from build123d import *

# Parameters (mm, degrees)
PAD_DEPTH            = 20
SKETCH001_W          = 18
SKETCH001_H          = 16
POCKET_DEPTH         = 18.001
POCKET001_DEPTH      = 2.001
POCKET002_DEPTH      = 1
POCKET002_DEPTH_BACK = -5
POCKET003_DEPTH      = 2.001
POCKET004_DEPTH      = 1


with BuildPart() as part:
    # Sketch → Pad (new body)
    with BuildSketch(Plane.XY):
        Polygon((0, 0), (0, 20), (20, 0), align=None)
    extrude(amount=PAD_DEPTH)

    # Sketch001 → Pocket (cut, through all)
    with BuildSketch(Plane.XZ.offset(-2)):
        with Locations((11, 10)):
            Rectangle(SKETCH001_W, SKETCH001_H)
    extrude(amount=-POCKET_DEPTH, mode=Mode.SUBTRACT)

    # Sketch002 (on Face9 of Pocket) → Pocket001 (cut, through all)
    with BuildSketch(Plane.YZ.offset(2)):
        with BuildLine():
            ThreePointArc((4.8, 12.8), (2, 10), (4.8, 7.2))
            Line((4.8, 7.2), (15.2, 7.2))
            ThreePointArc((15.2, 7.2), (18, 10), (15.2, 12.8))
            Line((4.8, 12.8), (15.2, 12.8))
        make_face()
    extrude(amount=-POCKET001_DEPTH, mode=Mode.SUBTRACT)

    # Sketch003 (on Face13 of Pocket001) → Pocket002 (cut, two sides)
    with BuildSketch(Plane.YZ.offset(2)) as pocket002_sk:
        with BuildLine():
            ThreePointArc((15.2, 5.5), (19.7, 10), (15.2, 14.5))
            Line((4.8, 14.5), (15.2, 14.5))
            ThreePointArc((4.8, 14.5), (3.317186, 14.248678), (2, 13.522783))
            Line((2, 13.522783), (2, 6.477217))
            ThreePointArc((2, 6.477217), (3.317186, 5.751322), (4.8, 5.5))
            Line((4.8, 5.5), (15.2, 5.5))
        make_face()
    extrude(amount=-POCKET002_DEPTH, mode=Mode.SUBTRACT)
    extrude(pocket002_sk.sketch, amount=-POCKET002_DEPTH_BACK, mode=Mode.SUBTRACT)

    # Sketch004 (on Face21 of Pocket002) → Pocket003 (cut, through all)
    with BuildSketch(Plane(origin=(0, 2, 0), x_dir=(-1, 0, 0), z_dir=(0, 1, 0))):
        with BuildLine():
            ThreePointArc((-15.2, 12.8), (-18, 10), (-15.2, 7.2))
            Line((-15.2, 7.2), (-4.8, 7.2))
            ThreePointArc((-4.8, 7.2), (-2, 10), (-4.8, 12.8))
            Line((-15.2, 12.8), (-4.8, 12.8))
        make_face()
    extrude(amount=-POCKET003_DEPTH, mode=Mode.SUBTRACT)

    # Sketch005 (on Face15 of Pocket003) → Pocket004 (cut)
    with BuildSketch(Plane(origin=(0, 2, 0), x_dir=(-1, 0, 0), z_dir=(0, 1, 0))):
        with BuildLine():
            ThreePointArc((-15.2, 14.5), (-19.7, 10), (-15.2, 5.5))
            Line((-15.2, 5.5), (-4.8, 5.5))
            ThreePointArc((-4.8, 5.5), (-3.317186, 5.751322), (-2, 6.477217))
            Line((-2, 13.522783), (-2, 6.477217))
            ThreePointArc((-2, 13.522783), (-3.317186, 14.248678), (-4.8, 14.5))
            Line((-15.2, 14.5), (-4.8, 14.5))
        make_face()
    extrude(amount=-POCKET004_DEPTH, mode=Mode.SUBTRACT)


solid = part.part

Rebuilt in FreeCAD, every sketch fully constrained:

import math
import FreeCAD as App
import Part
import Sketcher

doc = App.newDocument("Part")
body = doc.addObject("PartDesign::Body", "Body")

sketch1 = body.newObject("Sketcher::SketchObject", "Sketch")
sketch1.AttachmentSupport = (doc.getObject("XY_Plane"), [""])
sketch1.MapMode = "FlatFace"
sketch1.addGeometry([
    Part.LineSegment(App.Vector(0, 20, 0), App.Vector(0, 0, 0)),
    Part.LineSegment(App.Vector(0, 0, 0), App.Vector(20, 0, 0)),
    Part.LineSegment(App.Vector(20, 0, 0), App.Vector(0, 20, 0)),
], False)
sketch1.addConstraint([
    Sketcher.Constraint("Coincident", 0, 2, 1, 1),
    Sketcher.Constraint("Coincident", 1, 2, 2, 1),
    Sketcher.Constraint("Coincident", 2, 2, 0, 1),
    Sketcher.Constraint("Vertical", 0),
    Sketcher.Constraint("Horizontal", 1),
    Sketcher.Constraint("Coincident", 0, 2, -1, 1),
    Sketcher.Constraint("Equal", 1, 0),
    Sketcher.Constraint("DistanceX", 1, 1, 1, 2, 20.0),
])
pad1 = body.newObject("PartDesign::Pad", "Pad")
pad1.Profile = sketch1
pad1.Length = 20

sketch2 = body.newObject("Sketcher::SketchObject", "Sketch001")
sketch2.AttachmentSupport = (doc.getObject("XZ_Plane"), [""])
sketch2.MapMode = "FlatFace"
sketch2.AttachmentOffset = App.Placement(App.Vector(0, 0, -2), App.Rotation())
sketch2.addGeometry([
    Part.LineSegment(App.Vector(2, 18, 0), App.Vector(2, 2, 0)),
    Part.LineSegment(App.Vector(2, 2, 0), App.Vector(20, 2, 0)),
    Part.LineSegment(App.Vector(20, 2, 0), App.Vector(20, 18, 0)),
    Part.LineSegment(App.Vector(20, 18, 0), App.Vector(2, 18, 0)),
], False)
sketch2.addConstraint([
    Sketcher.Constraint("Coincident", 0, 2, 1, 1),
    Sketcher.Constraint("Coincident", 1, 2, 2, 1),
    Sketcher.Constraint("Coincident", 2, 2, 3, 1),
    Sketcher.Constraint("Coincident", 3, 2, 0, 1),
    Sketcher.Constraint("Vertical", 0),
    Sketcher.Constraint("Horizontal", 1),
    Sketcher.Constraint("Vertical", 2),
    Sketcher.Constraint("Horizontal", 3),
    Sketcher.Constraint("DistanceX", 1, 1, 1, 2, 18.0),
    Sketcher.Constraint("DistanceY", 0, 2, 0, 1, 16.0),
    Sketcher.Constraint("DistanceX", -1, 1, 0, 2, 2.0),
    Sketcher.Constraint("DistanceY", -1, 1, 0, 2, 2.0),
])
pocket1 = body.newObject("PartDesign::Pocket", "Pocket")
pocket1.Profile = sketch2
pocket1.Type = "ThroughAll"

sketch3 = body.newObject("Sketcher::SketchObject", "Sketch002")
sketch3.AttachmentSupport = (doc.getObject("YZ_Plane"), [""])
sketch3.MapMode = "FlatFace"
sketch3.AttachmentOffset = App.Placement(App.Vector(0, 0, 2), App.Rotation())
sketch3.addGeometry([
    Part.ArcOfCircle(Part.Circle(App.Vector(4.8, 10, 0), App.Vector(0, 0, 1), 2.8), math.radians(90), math.radians(270)),
    Part.LineSegment(App.Vector(4.8, 7.2, 0), App.Vector(15.2, 7.2, 0)),
    Part.ArcOfCircle(Part.Circle(App.Vector(15.2, 10, 0), App.Vector(0, 0, 1), 2.8), math.radians(-90), math.radians(90)),
    Part.LineSegment(App.Vector(15.2, 12.8, 0), App.Vector(4.8, 12.8, 0)),
], False)
sketch3.addConstraint([
    Sketcher.Constraint("Tangent", 0, 2, 1, 1),
    Sketcher.Constraint("Tangent", 1, 2, 2, 1),
    Sketcher.Constraint("Tangent", 2, 2, 3, 1),
    Sketcher.Constraint("Tangent", 3, 2, 0, 1),
    Sketcher.Constraint("Horizontal", 1),
    Sketcher.Constraint("Horizontal", 3),
    Sketcher.Constraint("Radius", 0, 2.8),
    Sketcher.Constraint("DistanceX", 1, 1, 1, 2, 10.4),
    Sketcher.Constraint("DistanceY", -1, 1, 0, 3, 10.0),
    Sketcher.Constraint("DistanceX", -1, 1, 0, 3, 4.8),
])
pocket2 = body.newObject("PartDesign::Pocket", "Pocket001")
pocket2.Profile = sketch3
pocket2.Type = "ThroughAll"

sketch4 = body.newObject("Sketcher::SketchObject", "Sketch003")
sketch4.AttachmentSupport = (doc.getObject("YZ_Plane"), [""])
sketch4.MapMode = "FlatFace"
sketch4.AttachmentOffset = App.Placement(App.Vector(0, 0, 2), App.Rotation())
sketch4.addGeometry([
    Part.ArcOfCircle(Part.Circle(App.Vector(15.2, 10, 0), App.Vector(0, 0, 1), 4.5), math.radians(-90), math.radians(90)),
    Part.LineSegment(App.Vector(15.2, 14.5, 0), App.Vector(4.8, 14.5, 0)),
    Part.ArcOfCircle(Part.Circle(App.Vector(4.799999, 10.000004, 0), App.Vector(0, 0, 1), 4.499996), math.radians(89.999983), math.radians(128.478612)),
    Part.LineSegment(App.Vector(2, 13.522783, 0), App.Vector(2, 6.477217, 0)),
    Part.ArcOfCircle(Part.Circle(App.Vector(4.799999, 9.999996, 0), App.Vector(0, 0, 1), 4.499996), math.radians(-128.478612), math.radians(-89.999983)),
    Part.LineSegment(App.Vector(4.8, 5.5, 0), App.Vector(15.2, 5.5, 0)),
], False)
sketch4.addConstraint([
    Sketcher.Constraint("Tangent", 0, 2, 1, 1),
    Sketcher.Constraint("Tangent", 1, 2, 2, 1),
    Sketcher.Constraint("Coincident", 2, 2, 3, 1),
    Sketcher.Constraint("Coincident", 3, 2, 4, 1),
    Sketcher.Constraint("Tangent", 4, 2, 5, 1),
    Sketcher.Constraint("Tangent", 5, 2, 0, 1),
    Sketcher.Constraint("Horizontal", 1),
    Sketcher.Constraint("Vertical", 3),
    Sketcher.Constraint("Horizontal", 5),
    Sketcher.Constraint("Coincident", 4, 3, 2, 3),
    Sketcher.Constraint("Equal", 2, 4),
    Sketcher.Constraint("Radius", 0, 4.5),
    Sketcher.Constraint("DistanceX", 1, 2, 1, 1, 10.4),
    Sketcher.Constraint("DistanceY", -1, 1, 0, 3, 10.0),
    Sketcher.Constraint("DistanceX", -1, 1, 2, 2, 2.0),
    Sketcher.Constraint("DistanceX", -1, 1, 0, 3, 15.2),
])
pocket3 = body.newObject("PartDesign::Pocket", "Pocket002")
pocket3.Profile = sketch4
pocket3.Type = "TwoLengths"
pocket3.Length = 1
pocket3.Length2 = 5

sketch5 = body.newObject("Sketcher::SketchObject", "Sketch004")
sketch5.AttachmentSupport = (doc.getObject("XZ_Plane"), [""])
sketch5.MapMode = "FlatFace"
sketch5.AttachmentOffset = App.Placement(App.Vector(0, 0, -2), App.Rotation())
sketch5.addGeometry([
    Part.ArcOfCircle(Part.Circle(App.Vector(15.2, 10, 0), App.Vector(0, 0, 1), 2.8), math.radians(-90), math.radians(90)),
    Part.LineSegment(App.Vector(15.2, 7.2, 0), App.Vector(4.8, 7.2, 0)),
    Part.ArcOfCircle(Part.Circle(App.Vector(4.8, 10, 0), App.Vector(0, 0, 1), 2.8), math.radians(90), math.radians(270)),
    Part.LineSegment(App.Vector(4.8, 12.8, 0), App.Vector(15.2, 12.8, 0)),
], False)
sketch5.addConstraint([
    Sketcher.Constraint("Tangent", 0, 1, 1, 1),
    Sketcher.Constraint("Tangent", 1, 2, 2, 2),
    Sketcher.Constraint("Tangent", 2, 1, 3, 1),
    Sketcher.Constraint("Tangent", 3, 2, 0, 2),
    Sketcher.Constraint("Horizontal", 1),
    Sketcher.Constraint("Horizontal", 3),
    Sketcher.Constraint("Radius", 0, 2.8),
    Sketcher.Constraint("DistanceX", 1, 2, 1, 1, 10.4),
    Sketcher.Constraint("DistanceY", -1, 1, 0, 3, 10.0),
    Sketcher.Constraint("DistanceX", -1, 1, 0, 3, 15.2),
])
pocket4 = body.newObject("PartDesign::Pocket", "Pocket003")
pocket4.Profile = sketch5
pocket4.Type = "ThroughAll"
pocket4.Reversed = True

sketch6 = body.newObject("Sketcher::SketchObject", "Sketch005")
sketch6.AttachmentSupport = (doc.getObject("XZ_Plane"), [""])
sketch6.MapMode = "FlatFace"
sketch6.AttachmentOffset = App.Placement(App.Vector(0, 0, -2), App.Rotation())
sketch6.addGeometry([
    Part.ArcOfCircle(Part.Circle(App.Vector(15.2, 10, 0), App.Vector(0, 0, 1), 4.5), math.radians(-90), math.radians(90)),
    Part.LineSegment(App.Vector(15.2, 5.5, 0), App.Vector(4.8, 5.5, 0)),
    Part.ArcOfCircle(Part.Circle(App.Vector(4.799999, 9.999996, 0), App.Vector(0, 0, 1), 4.499996), math.radians(-128.478612), math.radians(-89.999983)),
    Part.LineSegment(App.Vector(2, 6.477217, 0), App.Vector(2, 13.522783, 0)),
    Part.ArcOfCircle(Part.Circle(App.Vector(4.799999, 10.000004, 0), App.Vector(0, 0, 1), 4.499996), math.radians(89.999983), math.radians(128.478612)),
    Part.LineSegment(App.Vector(4.8, 14.5, 0), App.Vector(15.2, 14.5, 0)),
], False)
sketch6.addConstraint([
    Sketcher.Constraint("Tangent", 0, 1, 1, 1),
    Sketcher.Constraint("Tangent", 1, 2, 2, 2),
    Sketcher.Constraint("Coincident", 2, 1, 3, 1),
    Sketcher.Constraint("Coincident", 3, 2, 4, 2),
    Sketcher.Constraint("Tangent", 4, 1, 5, 1),
    Sketcher.Constraint("Tangent", 5, 2, 0, 2),
    Sketcher.Constraint("Horizontal", 1),
    Sketcher.Constraint("Vertical", 3),
    Sketcher.Constraint("Horizontal", 5),
    Sketcher.Constraint("Coincident", 4, 3, 2, 3),
    Sketcher.Constraint("Equal", 2, 4),
    Sketcher.Constraint("Radius", 0, 4.5),
    Sketcher.Constraint("DistanceX", 1, 2, 1, 1, 10.4),
    Sketcher.Constraint("DistanceY", -1, 1, 0, 3, 10.0),
    Sketcher.Constraint("DistanceX", -1, 1, 2, 1, 2.0),
    Sketcher.Constraint("DistanceX", -1, 1, 0, 3, 15.2),
])
pocket5 = body.newObject("PartDesign::Pocket", "Pocket004")
pocket5.Profile = sketch6
pocket5.Length = 1
pocket5.Reversed = True

doc.recompute()
